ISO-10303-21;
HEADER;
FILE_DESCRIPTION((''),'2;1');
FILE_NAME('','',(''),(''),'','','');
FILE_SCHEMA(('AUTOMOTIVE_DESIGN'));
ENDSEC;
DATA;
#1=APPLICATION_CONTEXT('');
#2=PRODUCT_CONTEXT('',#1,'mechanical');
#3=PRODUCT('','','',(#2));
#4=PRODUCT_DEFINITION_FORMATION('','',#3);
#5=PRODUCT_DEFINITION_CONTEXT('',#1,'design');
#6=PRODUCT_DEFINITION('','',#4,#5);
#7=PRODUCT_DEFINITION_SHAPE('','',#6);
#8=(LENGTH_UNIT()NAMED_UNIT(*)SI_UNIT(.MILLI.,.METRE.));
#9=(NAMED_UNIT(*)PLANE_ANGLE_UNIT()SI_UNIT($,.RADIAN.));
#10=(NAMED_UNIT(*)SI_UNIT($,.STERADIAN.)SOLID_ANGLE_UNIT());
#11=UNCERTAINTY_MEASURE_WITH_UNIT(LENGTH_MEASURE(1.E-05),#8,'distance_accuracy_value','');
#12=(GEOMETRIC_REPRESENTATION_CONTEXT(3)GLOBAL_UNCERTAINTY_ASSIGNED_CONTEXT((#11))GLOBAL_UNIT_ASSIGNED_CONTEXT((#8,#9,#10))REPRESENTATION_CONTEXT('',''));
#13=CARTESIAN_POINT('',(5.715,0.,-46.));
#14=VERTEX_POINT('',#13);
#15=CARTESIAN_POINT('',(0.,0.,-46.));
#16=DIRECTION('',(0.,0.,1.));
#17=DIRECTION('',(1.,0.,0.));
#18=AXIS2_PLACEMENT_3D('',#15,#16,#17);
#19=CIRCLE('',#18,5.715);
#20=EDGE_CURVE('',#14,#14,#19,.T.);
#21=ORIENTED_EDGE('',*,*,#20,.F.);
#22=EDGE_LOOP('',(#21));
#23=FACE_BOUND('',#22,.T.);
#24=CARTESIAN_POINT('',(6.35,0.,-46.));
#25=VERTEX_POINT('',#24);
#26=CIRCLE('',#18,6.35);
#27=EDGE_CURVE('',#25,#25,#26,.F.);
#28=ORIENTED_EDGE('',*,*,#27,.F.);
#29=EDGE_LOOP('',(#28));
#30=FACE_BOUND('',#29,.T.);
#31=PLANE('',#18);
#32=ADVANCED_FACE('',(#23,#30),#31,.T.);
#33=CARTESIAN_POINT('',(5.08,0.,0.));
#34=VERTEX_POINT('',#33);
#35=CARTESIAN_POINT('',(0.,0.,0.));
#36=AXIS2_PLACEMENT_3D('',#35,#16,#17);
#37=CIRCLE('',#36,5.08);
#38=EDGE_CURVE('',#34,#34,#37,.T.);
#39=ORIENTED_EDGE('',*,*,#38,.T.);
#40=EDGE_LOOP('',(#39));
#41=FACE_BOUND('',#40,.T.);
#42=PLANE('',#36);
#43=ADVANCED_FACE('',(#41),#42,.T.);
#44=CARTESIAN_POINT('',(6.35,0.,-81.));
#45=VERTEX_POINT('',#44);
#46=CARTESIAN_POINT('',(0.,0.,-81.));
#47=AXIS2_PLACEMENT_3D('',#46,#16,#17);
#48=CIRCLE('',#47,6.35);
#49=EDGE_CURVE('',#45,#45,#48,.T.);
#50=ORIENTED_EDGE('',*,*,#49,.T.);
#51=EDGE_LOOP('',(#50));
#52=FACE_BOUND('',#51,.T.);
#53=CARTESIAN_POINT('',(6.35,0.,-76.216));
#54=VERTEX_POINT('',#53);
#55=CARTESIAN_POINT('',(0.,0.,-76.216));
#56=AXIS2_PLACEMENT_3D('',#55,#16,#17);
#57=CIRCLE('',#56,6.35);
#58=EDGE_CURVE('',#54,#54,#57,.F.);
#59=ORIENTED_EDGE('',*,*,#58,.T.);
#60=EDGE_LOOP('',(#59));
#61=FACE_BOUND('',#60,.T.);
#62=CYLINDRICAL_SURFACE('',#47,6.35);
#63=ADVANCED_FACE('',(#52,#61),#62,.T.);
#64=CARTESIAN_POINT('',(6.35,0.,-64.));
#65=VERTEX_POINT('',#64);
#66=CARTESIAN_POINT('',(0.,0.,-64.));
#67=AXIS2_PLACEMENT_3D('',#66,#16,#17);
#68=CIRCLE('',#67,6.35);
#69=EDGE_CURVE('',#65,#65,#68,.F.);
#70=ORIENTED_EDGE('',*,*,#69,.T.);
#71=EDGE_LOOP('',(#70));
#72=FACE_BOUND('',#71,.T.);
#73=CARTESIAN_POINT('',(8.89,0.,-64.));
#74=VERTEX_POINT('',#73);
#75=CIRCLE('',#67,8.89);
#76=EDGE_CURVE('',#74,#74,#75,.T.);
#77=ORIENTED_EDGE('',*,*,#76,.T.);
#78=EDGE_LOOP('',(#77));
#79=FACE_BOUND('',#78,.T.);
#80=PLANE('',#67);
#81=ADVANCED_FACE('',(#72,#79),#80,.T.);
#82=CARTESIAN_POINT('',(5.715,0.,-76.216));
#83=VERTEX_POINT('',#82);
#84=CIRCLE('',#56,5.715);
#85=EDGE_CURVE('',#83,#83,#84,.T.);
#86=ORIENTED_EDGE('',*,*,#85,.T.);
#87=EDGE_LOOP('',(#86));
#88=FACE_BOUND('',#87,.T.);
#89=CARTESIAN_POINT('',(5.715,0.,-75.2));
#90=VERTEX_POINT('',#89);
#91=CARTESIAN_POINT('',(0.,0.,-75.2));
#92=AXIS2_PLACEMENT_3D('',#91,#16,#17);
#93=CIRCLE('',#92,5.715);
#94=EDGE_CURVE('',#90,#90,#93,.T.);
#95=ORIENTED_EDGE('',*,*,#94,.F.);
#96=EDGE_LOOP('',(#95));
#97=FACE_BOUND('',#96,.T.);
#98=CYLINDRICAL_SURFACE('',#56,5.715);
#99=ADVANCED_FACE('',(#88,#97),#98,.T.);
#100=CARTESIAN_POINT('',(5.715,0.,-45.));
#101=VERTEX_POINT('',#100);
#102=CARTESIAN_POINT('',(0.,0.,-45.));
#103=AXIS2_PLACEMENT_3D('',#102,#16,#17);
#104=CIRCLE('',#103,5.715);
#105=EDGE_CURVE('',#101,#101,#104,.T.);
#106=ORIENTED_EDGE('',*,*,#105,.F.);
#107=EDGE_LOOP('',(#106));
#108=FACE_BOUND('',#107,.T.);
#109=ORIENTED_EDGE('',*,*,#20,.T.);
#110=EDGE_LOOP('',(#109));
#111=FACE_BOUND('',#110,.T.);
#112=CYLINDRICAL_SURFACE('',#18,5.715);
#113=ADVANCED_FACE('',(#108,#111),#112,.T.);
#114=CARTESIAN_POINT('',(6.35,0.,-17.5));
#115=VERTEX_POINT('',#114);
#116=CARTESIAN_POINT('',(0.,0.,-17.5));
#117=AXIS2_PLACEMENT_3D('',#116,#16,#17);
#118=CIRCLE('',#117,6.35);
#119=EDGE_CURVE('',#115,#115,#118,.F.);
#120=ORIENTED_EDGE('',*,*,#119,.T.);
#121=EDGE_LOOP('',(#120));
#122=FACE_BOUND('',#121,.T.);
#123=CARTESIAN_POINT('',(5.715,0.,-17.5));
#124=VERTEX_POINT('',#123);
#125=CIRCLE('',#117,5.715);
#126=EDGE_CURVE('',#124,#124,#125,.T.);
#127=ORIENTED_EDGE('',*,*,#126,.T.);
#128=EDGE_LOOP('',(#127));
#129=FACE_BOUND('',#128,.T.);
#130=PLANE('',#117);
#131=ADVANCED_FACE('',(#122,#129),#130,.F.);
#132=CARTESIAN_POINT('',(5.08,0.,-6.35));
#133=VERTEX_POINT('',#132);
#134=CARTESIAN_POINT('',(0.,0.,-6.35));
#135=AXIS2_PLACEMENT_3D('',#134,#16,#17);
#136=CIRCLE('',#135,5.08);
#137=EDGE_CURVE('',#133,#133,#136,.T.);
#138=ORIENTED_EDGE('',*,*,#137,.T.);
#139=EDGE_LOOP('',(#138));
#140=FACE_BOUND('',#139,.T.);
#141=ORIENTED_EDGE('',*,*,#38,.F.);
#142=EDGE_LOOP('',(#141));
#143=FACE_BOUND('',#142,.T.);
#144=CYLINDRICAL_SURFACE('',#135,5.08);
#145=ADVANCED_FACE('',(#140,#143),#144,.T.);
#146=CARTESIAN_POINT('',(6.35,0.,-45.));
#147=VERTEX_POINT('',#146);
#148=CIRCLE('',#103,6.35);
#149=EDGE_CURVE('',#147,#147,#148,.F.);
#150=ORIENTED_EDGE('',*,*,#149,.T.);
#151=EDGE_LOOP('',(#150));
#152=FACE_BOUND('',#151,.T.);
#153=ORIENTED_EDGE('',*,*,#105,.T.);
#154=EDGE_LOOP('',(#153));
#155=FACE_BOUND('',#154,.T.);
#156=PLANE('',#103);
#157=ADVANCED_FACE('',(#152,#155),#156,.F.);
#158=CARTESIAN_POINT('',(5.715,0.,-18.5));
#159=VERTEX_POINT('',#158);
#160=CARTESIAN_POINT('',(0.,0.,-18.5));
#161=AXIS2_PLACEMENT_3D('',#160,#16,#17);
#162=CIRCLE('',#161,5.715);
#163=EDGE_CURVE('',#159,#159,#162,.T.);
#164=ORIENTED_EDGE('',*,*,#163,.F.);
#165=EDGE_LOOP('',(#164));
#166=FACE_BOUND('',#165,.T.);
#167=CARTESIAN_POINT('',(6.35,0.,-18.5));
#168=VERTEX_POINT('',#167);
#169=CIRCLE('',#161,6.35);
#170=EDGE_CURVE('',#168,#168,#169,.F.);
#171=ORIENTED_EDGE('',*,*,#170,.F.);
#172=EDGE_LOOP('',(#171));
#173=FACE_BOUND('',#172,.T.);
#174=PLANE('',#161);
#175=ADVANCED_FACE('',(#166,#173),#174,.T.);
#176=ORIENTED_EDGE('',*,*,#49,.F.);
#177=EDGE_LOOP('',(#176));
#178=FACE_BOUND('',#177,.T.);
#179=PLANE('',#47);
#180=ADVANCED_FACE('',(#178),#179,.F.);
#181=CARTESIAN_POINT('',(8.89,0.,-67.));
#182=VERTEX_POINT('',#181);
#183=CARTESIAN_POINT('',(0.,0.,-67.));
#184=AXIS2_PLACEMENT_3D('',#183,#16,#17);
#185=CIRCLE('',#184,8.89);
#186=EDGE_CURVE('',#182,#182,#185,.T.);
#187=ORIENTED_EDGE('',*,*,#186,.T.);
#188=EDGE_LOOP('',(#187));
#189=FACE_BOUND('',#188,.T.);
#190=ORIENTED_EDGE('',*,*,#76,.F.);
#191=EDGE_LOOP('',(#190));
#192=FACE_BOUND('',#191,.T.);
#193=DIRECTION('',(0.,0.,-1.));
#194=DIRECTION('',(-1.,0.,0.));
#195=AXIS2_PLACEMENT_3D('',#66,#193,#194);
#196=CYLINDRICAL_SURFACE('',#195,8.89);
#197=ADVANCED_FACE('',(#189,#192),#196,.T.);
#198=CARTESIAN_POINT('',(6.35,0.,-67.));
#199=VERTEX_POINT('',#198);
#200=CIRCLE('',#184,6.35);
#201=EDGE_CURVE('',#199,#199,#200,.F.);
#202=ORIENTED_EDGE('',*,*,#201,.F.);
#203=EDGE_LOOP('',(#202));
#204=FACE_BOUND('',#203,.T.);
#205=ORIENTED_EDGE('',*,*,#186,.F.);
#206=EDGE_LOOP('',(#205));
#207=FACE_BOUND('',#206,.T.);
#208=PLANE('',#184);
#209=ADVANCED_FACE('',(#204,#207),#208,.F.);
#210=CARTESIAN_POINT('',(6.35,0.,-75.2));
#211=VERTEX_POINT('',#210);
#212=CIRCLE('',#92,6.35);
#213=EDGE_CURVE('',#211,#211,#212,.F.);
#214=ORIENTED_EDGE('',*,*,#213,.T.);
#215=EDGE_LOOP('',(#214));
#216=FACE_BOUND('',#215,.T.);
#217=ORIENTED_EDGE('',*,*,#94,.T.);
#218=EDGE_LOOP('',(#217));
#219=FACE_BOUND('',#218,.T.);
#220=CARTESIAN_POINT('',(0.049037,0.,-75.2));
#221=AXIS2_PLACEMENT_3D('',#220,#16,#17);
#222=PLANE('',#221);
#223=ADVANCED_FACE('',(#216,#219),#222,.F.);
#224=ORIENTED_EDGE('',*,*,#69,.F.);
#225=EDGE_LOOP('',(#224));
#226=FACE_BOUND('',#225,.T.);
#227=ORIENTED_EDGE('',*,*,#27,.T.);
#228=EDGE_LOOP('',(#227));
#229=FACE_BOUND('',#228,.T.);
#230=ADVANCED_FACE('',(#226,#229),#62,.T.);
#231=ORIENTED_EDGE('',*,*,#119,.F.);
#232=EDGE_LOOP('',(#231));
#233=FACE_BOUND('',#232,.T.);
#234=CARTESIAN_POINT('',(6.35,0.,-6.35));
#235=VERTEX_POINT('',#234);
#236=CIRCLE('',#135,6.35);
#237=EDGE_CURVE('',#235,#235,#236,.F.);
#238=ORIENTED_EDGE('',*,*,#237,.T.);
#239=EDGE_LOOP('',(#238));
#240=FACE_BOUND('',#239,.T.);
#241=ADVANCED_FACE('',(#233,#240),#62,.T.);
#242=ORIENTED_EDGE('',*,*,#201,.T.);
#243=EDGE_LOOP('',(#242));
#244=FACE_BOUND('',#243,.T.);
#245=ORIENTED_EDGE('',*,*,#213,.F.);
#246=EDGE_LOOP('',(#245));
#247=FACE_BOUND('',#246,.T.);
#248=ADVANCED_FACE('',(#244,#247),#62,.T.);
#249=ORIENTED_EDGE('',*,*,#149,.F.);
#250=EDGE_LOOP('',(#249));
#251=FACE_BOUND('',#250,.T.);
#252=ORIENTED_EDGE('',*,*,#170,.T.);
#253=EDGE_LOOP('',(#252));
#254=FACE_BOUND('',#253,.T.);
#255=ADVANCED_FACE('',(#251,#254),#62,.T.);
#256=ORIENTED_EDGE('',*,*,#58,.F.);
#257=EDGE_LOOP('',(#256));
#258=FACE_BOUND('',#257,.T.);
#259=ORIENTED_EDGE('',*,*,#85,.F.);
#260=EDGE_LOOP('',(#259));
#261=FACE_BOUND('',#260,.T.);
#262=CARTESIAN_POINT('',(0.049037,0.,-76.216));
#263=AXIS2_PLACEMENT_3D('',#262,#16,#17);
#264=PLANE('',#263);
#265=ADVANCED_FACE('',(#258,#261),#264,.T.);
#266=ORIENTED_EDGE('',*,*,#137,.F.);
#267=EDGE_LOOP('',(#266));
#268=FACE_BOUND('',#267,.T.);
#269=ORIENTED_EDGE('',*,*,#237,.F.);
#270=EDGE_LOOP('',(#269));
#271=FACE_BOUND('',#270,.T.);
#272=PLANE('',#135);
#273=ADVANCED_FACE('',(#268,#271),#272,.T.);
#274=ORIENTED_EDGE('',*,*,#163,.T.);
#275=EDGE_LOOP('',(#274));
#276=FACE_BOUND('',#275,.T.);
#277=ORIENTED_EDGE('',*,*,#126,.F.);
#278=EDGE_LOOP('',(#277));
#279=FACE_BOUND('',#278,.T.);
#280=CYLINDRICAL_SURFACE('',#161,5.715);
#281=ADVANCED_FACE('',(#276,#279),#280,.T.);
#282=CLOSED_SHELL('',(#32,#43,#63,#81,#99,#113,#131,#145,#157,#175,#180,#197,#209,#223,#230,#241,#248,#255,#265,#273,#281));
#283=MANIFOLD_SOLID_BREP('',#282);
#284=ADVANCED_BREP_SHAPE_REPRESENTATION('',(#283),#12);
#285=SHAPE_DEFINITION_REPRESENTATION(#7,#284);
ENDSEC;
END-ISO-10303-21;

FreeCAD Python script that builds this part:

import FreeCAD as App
import Part
import Sketcher

V = App.Vector
Q = App.Units.Quantity

doc = App.newDocument("Part")
body = doc.addObject("PartDesign::Body", "Body")

# Sketch on XY plane
sketch1 = doc.addObject("Sketcher::SketchObject", "Sketch")
body.addObject(sketch1)
sketch1.AttachmentSupport = (doc.XY_Plane, [""])
sketch1.MapMode = "FlatFace"
sketch1.addGeometry(Part.Circle(V(0, 0, 0), V(0, 0, 1), 6.35), False)
sketch1.addConstraint([
    Sketcher.Constraint("Coincident", 0, 3, -1, 1),
    Sketcher.Constraint("Diameter", 0, Q("0.5 in")),
])
pad1 = doc.addObject("PartDesign::Pad", "Pad")
body.addObject(pad1)
pad1.Profile = sketch1
pad1.Length = 81
pad1.Reversed = True

# Sketch on XY plane
sketch2 = doc.addObject("Sketcher::SketchObject", "Sketch001")
body.addObject(sketch2)
sketch2.AttachmentSupport = (doc.XY_Plane, [""])
sketch2.MapMode = "FlatFace"
sketch2.AttachmentOffset = App.Placement(V(0, 0, -75.2), App.Rotation())
sketch2.addGeometry([
    Part.Circle(V(0.049037, 0, 0), V(0, 0, 1), 12.7),
    Part.Circle(V(0, 0, 0), V(0, 0, 1), 5.715),
], False)
sketch2.addConstraint([
    Sketcher.Constraint("Coincident", 1, 3, -1, 1),
    Sketcher.Constraint("PointOnObject", 0, 3, -1),
    Sketcher.Constraint("Diameter", 0, Q("1 in")),
    Sketcher.Constraint("Diameter", 1, Q("0.45 in")),
    Sketcher.Constraint("DistanceX", -1, 1, 0, 3, 0.049037),
])
pocket1 = doc.addObject("PartDesign::Pocket", "Pocket")
body.addObject(pocket1)
pocket1.Profile = sketch2
pocket1.Length = Q("0.04 in")

# Sketch on XY plane
sketch3 = doc.addObject("Sketcher::SketchObject", "Sketch002")
body.addObject(sketch3)
sketch3.AttachmentSupport = (doc.XY_Plane, [""])
sketch3.MapMode = "FlatFace"
sketch3.AttachmentOffset = App.Placement(V(0, 0, -67), App.Rotation())
sketch3.addGeometry(Part.Circle(V(0, 0, 0), V(0, 0, 1), 8.89), False)
sketch3.addConstraint([
    Sketcher.Constraint("Coincident", 0, 3, -1, 1),
    Sketcher.Constraint("Diameter", 0, Q("0.7 in")),
])
pad2 = doc.addObject("PartDesign::Pad", "Pad001")
body.addObject(pad2)
pad2.Profile = sketch3
pad2.Length = 3

# Sketch on XY plane
sketch4 = doc.addObject("Sketcher::SketchObject", "Sketch003")
body.addObject(sketch4)
sketch4.AttachmentSupport = (doc.XY_Plane, [""])
sketch4.MapMode = "FlatFace"
sketch4.addGeometry([
    Part.Circle(V(0, 0, 0), V(0, 0, 1), 7.62),
    Part.Circle(V(0, 0, 0), V(0, 0, 1), 5.08),
], False)
sketch4.addConstraint([
    Sketcher.Constraint("Coincident", 0, 3, -1, 1),
    Sketcher.Constraint("Coincident", 1, 3, -1, 1),
    Sketcher.Constraint("Diameter", 0, Q("0.6 in")),
    Sketcher.Constraint("Diameter", 1, Q("0.4 in")),
])
pocket2 = doc.addObject("PartDesign::Pocket", "Pocket001")
body.addObject(pocket2)
pocket2.Profile = sketch4
pocket2.Length = Q("0.25 in")

# Sketch on XY plane
sketch5 = doc.addObject("Sketcher::SketchObject", "Sketch004")
body.addObject(sketch5)
sketch5.AttachmentSupport = (doc.XY_Plane, [""])
sketch5.MapMode = "FlatFace"
sketch5.AttachmentOffset = App.Placement(V(0, 0, -17.5), App.Rotation())
sketch5.addGeometry([
    Part.Circle(V(0, 0, 0), V(0, 0, 1), 12.7),
    Part.Circle(V(0, 0, 0), V(0, 0, 1), 5.715),
], False)
sketch5.addConstraint([
    Sketcher.Constraint("Coincident", 0, 3, -1, 1),
    Sketcher.Constraint("Coincident", 1, 3, -1, 1),
    Sketcher.Constraint("Diameter", 0, Q("1 in")),
    Sketcher.Constraint("Diameter", 1, Q("0.45 in")),
])
pocket3 = doc.addObject("PartDesign::Pocket", "Pocket002")
body.addObject(pocket3)
pocket3.Profile = sketch5
pocket3.Length = 1

# Sketch on XY plane
sketch6 = doc.addObject("Sketcher::SketchObject", "Sketch005")
body.addObject(sketch6)
sketch6.AttachmentSupport = (doc.XY_Plane, [""])
sketch6.MapMode = "FlatFace"
sketch6.AttachmentOffset = App.Placement(V(0, 0, -45), App.Rotation())
sketch6.addGeometry([
    Part.Circle(V(0, 0, 0), V(0, 0, 1), 12.7),
    Part.Circle(V(0, 0, 0), V(0, 0, 1), 5.715),
], False)
sketch6.addConstraint([
    Sketcher.Constraint("Coincident", 0, 3, -1, 1),
    Sketcher.Constraint("Coincident", 1, 3, -1, 1),
    Sketcher.Constraint("Diameter", 0, Q("1 in")),
    Sketcher.Constraint("Diameter", 1, Q("0.45 in")),
])
pocket4 = doc.addObject("PartDesign::Pocket", "Pocket003")
body.addObject(pocket4)
pocket4.Profile = sketch6
pocket4.Length = 1

doc.recompute()
